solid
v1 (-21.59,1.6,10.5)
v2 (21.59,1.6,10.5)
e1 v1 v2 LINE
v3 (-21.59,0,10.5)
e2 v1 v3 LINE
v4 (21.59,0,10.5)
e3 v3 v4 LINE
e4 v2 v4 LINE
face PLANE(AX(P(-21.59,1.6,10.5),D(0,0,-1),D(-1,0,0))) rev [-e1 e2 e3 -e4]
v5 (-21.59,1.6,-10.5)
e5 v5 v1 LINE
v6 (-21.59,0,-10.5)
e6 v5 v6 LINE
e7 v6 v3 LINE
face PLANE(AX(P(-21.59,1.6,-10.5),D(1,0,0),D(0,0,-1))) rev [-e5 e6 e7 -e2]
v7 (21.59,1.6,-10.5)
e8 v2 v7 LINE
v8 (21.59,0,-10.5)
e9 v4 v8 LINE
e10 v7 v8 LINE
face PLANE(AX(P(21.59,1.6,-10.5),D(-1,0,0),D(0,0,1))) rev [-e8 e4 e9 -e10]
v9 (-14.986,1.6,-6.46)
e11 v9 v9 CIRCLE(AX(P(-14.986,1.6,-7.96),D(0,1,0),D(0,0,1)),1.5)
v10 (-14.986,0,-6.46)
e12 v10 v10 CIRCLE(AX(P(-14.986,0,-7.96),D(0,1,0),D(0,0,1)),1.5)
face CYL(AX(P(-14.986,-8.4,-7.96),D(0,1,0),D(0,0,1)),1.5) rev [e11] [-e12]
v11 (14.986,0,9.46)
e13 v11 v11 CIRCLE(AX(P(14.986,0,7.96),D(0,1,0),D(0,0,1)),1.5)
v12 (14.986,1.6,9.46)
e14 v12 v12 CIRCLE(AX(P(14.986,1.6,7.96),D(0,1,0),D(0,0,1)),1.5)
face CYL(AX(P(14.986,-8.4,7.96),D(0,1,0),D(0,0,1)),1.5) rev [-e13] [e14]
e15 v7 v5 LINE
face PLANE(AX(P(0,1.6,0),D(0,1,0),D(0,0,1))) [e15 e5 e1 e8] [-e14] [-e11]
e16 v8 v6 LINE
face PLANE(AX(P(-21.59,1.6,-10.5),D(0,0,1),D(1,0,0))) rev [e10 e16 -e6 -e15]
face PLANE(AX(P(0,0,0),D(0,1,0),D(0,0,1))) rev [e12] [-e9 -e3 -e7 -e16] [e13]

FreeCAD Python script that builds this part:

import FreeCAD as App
import Part
import Sketcher

V = App.Vector


def add_polygon(sketch, points):
    """Adds a closed chain of lines whose ends are joined by coincident constraints."""
    first, n = sketch.GeometryCount, len(points)
    for a, b in zip(points, points[1:] + points[:1]):
        sketch.addGeometry(Part.LineSegment(App.Vector(*a, 0), App.Vector(*b, 0)), False)
    for i in range(n):
        sketch.addConstraint(Sketcher.Constraint("Coincident", first + i, 2, first + (i + 1) % n, 1))

doc = App.newDocument("Part")
body = doc.addObject("PartDesign::Body", "Body")

# Sketch on XZ plane
sketch1 = body.newObject("Sketcher::SketchObject", "Sketch")
sketch1.AttachmentSupport = (doc.getObject("XZ_Plane"), [""])
sketch1.MapMode = "FlatFace"
add_polygon(sketch1, [(-22, -10), (-22, 10), (22, 10), (22, -10)])  # lines 0-3
sketch1.addConstraint([
    Sketcher.Constraint("Vertical", 0),
    Sketcher.Constraint("Horizontal", 1),
    Sketcher.Constraint("Vertical", 2),
    Sketcher.Constraint("Horizontal", 3),
    Sketcher.Constraint("Symmetric", 0, 2, 2, 2, -1, 1),
    Sketcher.Constraint("DistanceY", 0, 1, 0, 2, 21.0),
    Sketcher.Constraint("DistanceX", 1, 1, 1, 2, 43.18),
])
pad1 = body.newObject("PartDesign::Pad", "Pad")
pad1.Profile = sketch1
pad1.Length = 1.6
pad1.Reversed = True

# Sketch on XZ plane
sketch2 = body.newObject("Sketcher::SketchObject", "Sketch001")
sketch2.AttachmentSupport = (doc.getObject("XZ_Plane"), [""])
sketch2.MapMode = "FlatFace"
sketch2.AttachmentOffset = App.Placement(V(0, 0, -1.6), App.Rotation())
sketch2.addGeometry([
    Part.Circle(V(-15, -8, 0), V(0, 0, 1), 1.5),
    Part.Circle(V(15, 8, 0), V(0, 0, 1), 1.5),
], False)
sketch2.addConstraint([
    Sketcher.Constraint("Equal", 0, 1),
    Sketcher.Constraint("Symmetric", 0, 3, 1, 3, -1, 1),
    Sketcher.Constraint("Diameter", 0, 3.0),
    Sketcher.Constraint("DistanceY", 0, 3, -1, 1, 7.96),
    Sketcher.Constraint("DistanceX", 0, 3, -1, 1, 14.986),
])
pocket1 = body.newObject("PartDesign::Pocket", "Pocket")
pocket1.Profile = sketch2
pocket1.Length = 10
pocket1.Reversed = True

doc.recompute()
